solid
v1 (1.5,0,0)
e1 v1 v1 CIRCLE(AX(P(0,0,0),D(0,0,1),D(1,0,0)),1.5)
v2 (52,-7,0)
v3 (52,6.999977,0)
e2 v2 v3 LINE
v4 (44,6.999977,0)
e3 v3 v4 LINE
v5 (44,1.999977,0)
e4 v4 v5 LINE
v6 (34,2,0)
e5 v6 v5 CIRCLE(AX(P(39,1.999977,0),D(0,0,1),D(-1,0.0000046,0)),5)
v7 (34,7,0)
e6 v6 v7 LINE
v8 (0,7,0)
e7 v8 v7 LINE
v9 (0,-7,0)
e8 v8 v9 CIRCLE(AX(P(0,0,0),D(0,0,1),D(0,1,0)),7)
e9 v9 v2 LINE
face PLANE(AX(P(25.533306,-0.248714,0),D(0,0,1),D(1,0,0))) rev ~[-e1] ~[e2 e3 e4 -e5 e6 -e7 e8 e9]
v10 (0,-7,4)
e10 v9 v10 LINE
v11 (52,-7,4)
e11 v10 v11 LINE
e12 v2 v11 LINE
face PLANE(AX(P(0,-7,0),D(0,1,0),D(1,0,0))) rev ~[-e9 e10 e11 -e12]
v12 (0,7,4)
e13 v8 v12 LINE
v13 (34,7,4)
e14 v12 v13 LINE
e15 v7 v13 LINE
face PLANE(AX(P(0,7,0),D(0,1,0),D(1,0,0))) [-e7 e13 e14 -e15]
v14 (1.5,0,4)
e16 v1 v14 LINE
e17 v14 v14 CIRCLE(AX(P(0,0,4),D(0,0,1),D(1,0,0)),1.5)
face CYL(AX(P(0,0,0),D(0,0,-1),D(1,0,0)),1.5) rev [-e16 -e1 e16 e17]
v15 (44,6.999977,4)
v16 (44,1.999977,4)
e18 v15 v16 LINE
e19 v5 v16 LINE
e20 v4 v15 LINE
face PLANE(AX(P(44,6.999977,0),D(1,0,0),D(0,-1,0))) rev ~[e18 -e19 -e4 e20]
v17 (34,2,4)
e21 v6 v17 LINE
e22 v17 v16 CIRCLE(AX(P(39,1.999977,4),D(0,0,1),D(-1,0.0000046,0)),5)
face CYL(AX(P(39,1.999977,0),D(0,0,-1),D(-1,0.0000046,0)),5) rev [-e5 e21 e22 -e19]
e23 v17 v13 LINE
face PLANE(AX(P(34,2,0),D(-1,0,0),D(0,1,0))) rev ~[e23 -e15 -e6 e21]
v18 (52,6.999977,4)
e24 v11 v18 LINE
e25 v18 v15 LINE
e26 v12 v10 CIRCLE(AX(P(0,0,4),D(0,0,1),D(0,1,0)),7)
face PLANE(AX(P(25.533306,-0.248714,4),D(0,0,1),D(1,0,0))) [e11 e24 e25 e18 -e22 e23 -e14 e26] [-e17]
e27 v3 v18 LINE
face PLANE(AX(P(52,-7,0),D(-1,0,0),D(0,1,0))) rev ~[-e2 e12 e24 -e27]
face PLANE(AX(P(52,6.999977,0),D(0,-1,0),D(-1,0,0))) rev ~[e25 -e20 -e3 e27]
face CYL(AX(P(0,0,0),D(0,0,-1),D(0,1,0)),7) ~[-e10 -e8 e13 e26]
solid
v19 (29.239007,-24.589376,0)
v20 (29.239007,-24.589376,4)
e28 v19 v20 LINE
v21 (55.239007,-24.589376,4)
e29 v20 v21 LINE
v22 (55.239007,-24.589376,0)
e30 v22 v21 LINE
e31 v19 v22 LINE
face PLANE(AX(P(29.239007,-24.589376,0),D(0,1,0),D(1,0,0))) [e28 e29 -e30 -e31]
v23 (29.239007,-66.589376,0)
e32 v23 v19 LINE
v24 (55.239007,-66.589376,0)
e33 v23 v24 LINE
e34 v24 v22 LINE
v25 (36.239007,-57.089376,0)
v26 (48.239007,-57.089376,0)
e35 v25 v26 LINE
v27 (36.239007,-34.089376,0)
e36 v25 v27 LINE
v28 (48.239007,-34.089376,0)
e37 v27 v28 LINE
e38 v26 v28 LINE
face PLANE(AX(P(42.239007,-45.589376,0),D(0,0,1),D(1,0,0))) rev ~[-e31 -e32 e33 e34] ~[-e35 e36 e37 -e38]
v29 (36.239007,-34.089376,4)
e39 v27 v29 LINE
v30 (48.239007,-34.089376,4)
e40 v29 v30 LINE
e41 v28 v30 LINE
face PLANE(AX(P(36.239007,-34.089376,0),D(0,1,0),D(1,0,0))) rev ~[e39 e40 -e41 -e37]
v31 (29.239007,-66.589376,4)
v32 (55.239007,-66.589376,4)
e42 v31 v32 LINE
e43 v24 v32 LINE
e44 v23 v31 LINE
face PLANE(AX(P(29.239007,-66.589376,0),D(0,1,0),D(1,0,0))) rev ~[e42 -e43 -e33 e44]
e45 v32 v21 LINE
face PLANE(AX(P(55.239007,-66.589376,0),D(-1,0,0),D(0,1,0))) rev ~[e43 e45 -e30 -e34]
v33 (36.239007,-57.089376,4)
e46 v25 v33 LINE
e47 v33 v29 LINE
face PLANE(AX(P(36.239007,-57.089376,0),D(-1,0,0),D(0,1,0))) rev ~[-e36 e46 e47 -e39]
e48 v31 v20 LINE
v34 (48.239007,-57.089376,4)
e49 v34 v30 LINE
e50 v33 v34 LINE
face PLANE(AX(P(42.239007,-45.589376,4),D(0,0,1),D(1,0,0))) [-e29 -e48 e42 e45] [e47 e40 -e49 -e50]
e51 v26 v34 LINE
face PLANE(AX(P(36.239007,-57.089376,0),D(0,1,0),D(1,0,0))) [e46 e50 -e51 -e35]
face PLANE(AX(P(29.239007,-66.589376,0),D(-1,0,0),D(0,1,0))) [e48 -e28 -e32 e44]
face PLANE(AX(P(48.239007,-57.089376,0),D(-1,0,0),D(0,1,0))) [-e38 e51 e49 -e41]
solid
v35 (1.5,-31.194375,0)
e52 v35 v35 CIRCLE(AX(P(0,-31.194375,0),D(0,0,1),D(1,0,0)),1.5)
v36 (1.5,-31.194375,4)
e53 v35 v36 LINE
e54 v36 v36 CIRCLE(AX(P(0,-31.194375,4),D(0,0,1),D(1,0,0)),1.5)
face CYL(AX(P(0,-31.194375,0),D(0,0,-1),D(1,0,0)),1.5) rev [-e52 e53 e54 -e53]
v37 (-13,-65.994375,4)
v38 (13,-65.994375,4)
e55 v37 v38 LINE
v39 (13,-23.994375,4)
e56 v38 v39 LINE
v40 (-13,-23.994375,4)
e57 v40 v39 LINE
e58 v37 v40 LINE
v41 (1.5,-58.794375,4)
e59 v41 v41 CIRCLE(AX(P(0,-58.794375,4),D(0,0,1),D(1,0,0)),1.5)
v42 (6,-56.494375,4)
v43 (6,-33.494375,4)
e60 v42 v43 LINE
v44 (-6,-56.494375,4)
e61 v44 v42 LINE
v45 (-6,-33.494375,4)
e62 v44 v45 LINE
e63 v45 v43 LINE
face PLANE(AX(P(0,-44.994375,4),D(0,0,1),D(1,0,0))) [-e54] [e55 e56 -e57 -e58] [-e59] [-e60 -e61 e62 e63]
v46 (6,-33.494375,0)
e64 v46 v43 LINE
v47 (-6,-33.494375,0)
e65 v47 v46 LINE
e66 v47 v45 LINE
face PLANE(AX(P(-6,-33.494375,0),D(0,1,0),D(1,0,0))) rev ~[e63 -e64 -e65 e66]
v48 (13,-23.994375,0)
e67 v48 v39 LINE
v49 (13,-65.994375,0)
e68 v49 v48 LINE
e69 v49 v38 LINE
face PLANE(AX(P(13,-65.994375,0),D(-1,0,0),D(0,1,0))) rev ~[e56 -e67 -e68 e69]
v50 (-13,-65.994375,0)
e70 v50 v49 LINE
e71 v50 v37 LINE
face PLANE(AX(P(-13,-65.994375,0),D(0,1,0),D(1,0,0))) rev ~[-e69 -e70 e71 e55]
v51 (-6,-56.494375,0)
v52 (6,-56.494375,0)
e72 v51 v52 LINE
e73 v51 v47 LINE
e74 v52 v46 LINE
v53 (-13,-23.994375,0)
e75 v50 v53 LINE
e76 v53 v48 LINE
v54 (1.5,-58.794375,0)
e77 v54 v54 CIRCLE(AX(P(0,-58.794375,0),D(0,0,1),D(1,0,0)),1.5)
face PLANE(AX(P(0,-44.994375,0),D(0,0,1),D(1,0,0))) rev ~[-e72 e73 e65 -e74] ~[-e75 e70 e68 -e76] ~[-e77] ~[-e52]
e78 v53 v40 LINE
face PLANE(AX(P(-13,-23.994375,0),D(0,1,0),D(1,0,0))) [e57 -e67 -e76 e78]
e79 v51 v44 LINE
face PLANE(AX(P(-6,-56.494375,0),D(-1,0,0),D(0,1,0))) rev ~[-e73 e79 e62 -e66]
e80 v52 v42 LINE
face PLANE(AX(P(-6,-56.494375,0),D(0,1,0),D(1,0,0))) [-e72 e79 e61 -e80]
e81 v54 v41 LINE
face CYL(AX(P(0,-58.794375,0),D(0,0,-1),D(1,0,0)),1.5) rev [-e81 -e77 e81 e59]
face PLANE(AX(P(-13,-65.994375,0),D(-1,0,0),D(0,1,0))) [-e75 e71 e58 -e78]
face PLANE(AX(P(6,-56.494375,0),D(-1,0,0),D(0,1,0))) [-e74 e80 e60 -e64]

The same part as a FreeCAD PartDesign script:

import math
import FreeCAD as App
import Part
import Sketcher
Q = App.Units.Quantity


def add_polygon(sketch, points):
    """Adds a closed chain of lines whose ends are joined by coincident constraints."""
    first, n = sketch.GeometryCount, len(points)
    for a, b in zip(points, points[1:] + points[:1]):
        sketch.addGeometry(Part.LineSegment(App.Vector(*a, 0), App.Vector(*b, 0)), False)
    for i in range(n):
        sketch.addConstraint(Sketcher.Constraint("Coincident", first + i, 2, first + (i + 1) % n, 1))

doc = App.newDocument("Part")
params = doc.addObject("Spreadsheet::Sheet", "Params")
for row, (alias, value) in enumerate([
    ("sketch1_width", "26 mm"),
    ("sketch1_width2", "12 mm"),
    ("sketch1_height", "42 mm"),
    ("sketch1_height2", "23 mm"),
    ("pad1_length", "4 mm"),
    ("sketch2_diameter", "3 mm"),
    ("sketch2_width", "26 mm"),
    ("sketch2_width2", "12 mm"),
    ("sketch2_height", "42 mm"),
    ("sketch2_height2", "23 mm"),
    ("pad2_length", "4 mm"),
    ("sketch3_diameter", "3 mm"),
    ("sketch3_radius", "7 mm"),
    ("sketch3_radius2", "5 mm"),
    ("sketch3_width", "52 mm"),
    ("sketch3_width2", "8 mm"),
    ("pad3_length", "4 mm"),
], start=1):
    params.set(f"A{row}", alias)
    params.set(f"B{row}", "=" + value)
    params.setAlias(f"B{row}", alias)

body = doc.addObject("PartDesign::Body", "Body")

# Sketch on XY plane
sketch1 = doc.addObject("Sketcher::SketchObject", "Sketch")
body.addObject(sketch1)
sketch1.AttachmentSupport = (doc.XY_Plane, [""])
sketch1.MapMode = "FlatFace"
add_polygon(sketch1, [(29, -25), (29, -67), (55, -67), (55, -25)])  # lines 0-3
add_polygon(sketch1, [(48, -57), (36, -57), (36, -34), (48, -34)])  # lines 4-7
sketch1.addConstraint([
    Sketcher.Constraint("Vertical", 0),
    Sketcher.Constraint("Horizontal", 1),
    Sketcher.Constraint("Vertical", 2),
    Sketcher.Constraint("Horizontal", 3),
    Sketcher.Constraint("Horizontal", 4),
    Sketcher.Constraint("Vertical", 5),
    Sketcher.Constraint("Horizontal", 6),
    Sketcher.Constraint("Vertical", 7),
    Sketcher.Constraint("DistanceX", 1, 1, 1, 2, Q("26 mm")),
    Sketcher.Constraint("DistanceX", 4, 2, 4, 1, Q("12 mm")),
    Sketcher.Constraint("DistanceY", 0, 2, 0, 1, Q("42 mm")),
    Sketcher.Constraint("DistanceY", 5, 1, 5, 2, Q("23 mm")),
    Sketcher.Constraint("DistanceX", 0, 2, 4, 2, Q("7 mm")),
    Sketcher.Constraint("DistanceY", 0, 2, 4, 2, Q("9.5 mm")),
    Sketcher.Constraint("DistanceX", -1, 1, 0, 2, Q("29.239007 mm")),
    Sketcher.Constraint("DistanceY", 0, 2, -1, 1, Q("66.589376 mm")),
])
sketch1.setExpression("Constraints[16]", "Params.sketch1_width")
sketch1.setExpression("Constraints[17]", "Params.sketch1_width2")
sketch1.setExpression("Constraints[18]", "Params.sketch1_height")
sketch1.setExpression("Constraints[19]", "Params.sketch1_height2")
pad1 = doc.addObject("PartDesign::Pad", "Pad")
body.addObject(pad1)
pad1.Profile = sketch1
pad1.setExpression("Length", "Params.pad1_length")
body2 = doc.addObject("PartDesign::Body", "Body001")

# Sketch on XY plane
sketch2 = doc.addObject("Sketcher::SketchObject", "Sketch001")
body2.addObject(sketch2)
sketch2.AttachmentSupport = (doc.getObject("XY_Plane001"), [""])
sketch2.MapMode = "FlatFace"
add_polygon(sketch2, [(-13, -24), (-13, -66), (13, -66), (13, -24)])  # lines 0-3
sketch2.addGeometry(Part.Circle(App.Vector(0, -58.8, 0), App.Vector(0, 0, 1), 1.5), False)  # 4
add_polygon(sketch2, [(6, -56.5), (-6, -56.5), (-6, -33.5), (6, -33.5)])  # lines 5-8
sketch2.addGeometry(Part.Circle(App.Vector(0, -31.2, 0), App.Vector(0, 0, 1), 1.5), False)  # 9
sketch2.addConstraint([
    Sketcher.Constraint("Vertical", 0),
    Sketcher.Constraint("Horizontal", 1),
    Sketcher.Constraint("Vertical", 2),
    Sketcher.Constraint("Horizontal", 3),
    Sketcher.Constraint("Horizontal", 5),
    Sketcher.Constraint("Vertical", 6),
    Sketcher.Constraint("Horizontal", 7),
    Sketcher.Constraint("Vertical", 8),
    Sketcher.Constraint("Equal", 4, 9),
    Sketcher.Constraint("PointOnObject", 4, 3, -2),
    Sketcher.Constraint("PointOnObject", 9, 3, -2),
    Sketcher.Constraint("Diameter", 4, Q("3 mm")),
    Sketcher.Constraint("DistanceX", 1, 1, 1, 2, Q("26 mm")),
    Sketcher.Constraint("DistanceX", 5, 2, 5, 1, Q("12 mm")),
    Sketcher.Constraint("DistanceY", 0, 2, 0, 1, Q("42 mm")),
    Sketcher.Constraint("DistanceY", 6, 1, 6, 2, Q("23 mm")),
    Sketcher.Constraint("DistanceX", 0, 2, -1, 1, Q("13 mm")),
    Sketcher.Constraint("DistanceX", 5, 2, -1, 1, Q("6 mm")),
    Sketcher.Constraint("DistanceY", 4, 3, 9, 3, Q("27.6 mm")),
    Sketcher.Constraint("DistanceY", 0, 2, 4, 3, Q("7.2 mm")),
    Sketcher.Constraint("DistanceY", 4, 3, 5, 2, Q("2.3 mm")),
    Sketcher.Constraint("DistanceY", 4, 3, -1, 1, Q("58.794375 mm")),
])
sketch2.setExpression("Constraints[19]", "Params.sketch2_diameter")
sketch2.setExpression("Constraints[20]", "Params.sketch2_width")
sketch2.setExpression("Constraints[21]", "Params.sketch2_width2")
sketch2.setExpression("Constraints[22]", "Params.sketch2_height")
sketch2.setExpression("Constraints[23]", "Params.sketch2_height2")
pad2 = doc.addObject("PartDesign::Pad", "Pad001")
body2.addObject(pad2)
pad2.Profile = sketch2
pad2.setExpression("Length", "Params.pad2_length")
body3 = doc.addObject("PartDesign::Body", "Body002")

# Sketch on XY plane
sketch3 = doc.addObject("Sketcher::SketchObject", "Sketch002")
body3.addObject(sketch3)
sketch3.AttachmentSupport = (doc.getObject("XY_Plane002"), [""])
sketch3.MapMode = "FlatFace"
sketch3.addGeometry([
    Part.ArcOfCircle(Part.Circle(App.Vector(0, 0, 0), App.Vector(0, 0, 1), 7), math.radians(90), math.radians(270)),  # 0
    Part.LineSegment(App.Vector(0, -7, 0), App.Vector(52, -7, 0)),  # 1
    Part.LineSegment(App.Vector(52, -7, 0), App.Vector(52, 7, 0)),  # 2
    Part.LineSegment(App.Vector(52, 7, 0), App.Vector(44, 7, 0)),  # 3
    Part.LineSegment(App.Vector(44, 7, 0), App.Vector(44, 2, 0)),  # 4
    Part.ArcOfCircle(Part.Circle(App.Vector(39, 2, 0), App.Vector(0, 0, 1), 5), math.radians(180), math.radians(360)),  # 5
    Part.LineSegment(App.Vector(34, 2, 0), App.Vector(34, 7, 0)),  # 6
    Part.LineSegment(App.Vector(34, 7, 0), App.Vector(0, 7, 0)),  # 7
    Part.Circle(App.Vector(0, 0, 0), App.Vector(0, 0, 1), 1.5),  # 8
], False)
sketch3.addConstraint([
    Sketcher.Constraint("Tangent", 0, 2, 1, 1),
    Sketcher.Constraint("Coincident", 1, 2, 2, 1),
    Sketcher.Constraint("Coincident", 2, 2, 3, 1),
    Sketcher.Constraint("Coincident", 3, 2, 4, 1),
    Sketcher.Constraint("Tangent", 4, 2, 5, 2),
    Sketcher.Constraint("Coincident", 5, 1, 6, 1),
    Sketcher.Constraint("Coincident", 6, 2, 7, 1),
    Sketcher.Constraint("Tangent", 7, 2, 0, 1),
    Sketcher.Constraint("Horizontal", 1),
    Sketcher.Constraint("Vertical", 2),
    Sketcher.Constraint("Horizontal", 3),
    Sketcher.Constraint("Vertical", 4),
    Sketcher.Constraint("Vertical", 6),
    Sketcher.Constraint("Horizontal", 7),
    Sketcher.Constraint("Coincident", 0, 3, -1, 1),
    Sketcher.Constraint("Coincident", 8, 3, -1, 1),
    Sketcher.Constraint("Equal", 4, 6),
    Sketcher.Constraint("Diameter", 8, Q("3 mm")),
    Sketcher.Constraint("Radius", 0, Q("7 mm")),
    Sketcher.Constraint("Radius", 5, Q("5 mm")),
    Sketcher.Constraint("DistanceX", 1, 1, 1, 2, Q("52 mm")),
    Sketcher.Constraint("DistanceX", 3, 2, 3, 1, Q("8 mm")),
    Sketcher.Constraint("DistanceY", 4, 2, 4, 1, Q("5 mm")),
    Sketcher.Constraint("DistanceY", 2, 1, 2, 2, Q("13.999977 mm")),
])
sketch3.setExpression("Constraints[17]", "Params.sketch3_diameter")
sketch3.setExpression("Constraints[18]", "Params.sketch3_radius")
sketch3.setExpression("Constraints[19]", "Params.sketch3_radius2")
sketch3.setExpression("Constraints[20]", "Params.sketch3_width")
sketch3.setExpression("Constraints[21]", "Params.sketch3_width2")
pad3 = doc.addObject("PartDesign::Pad", "Pad002")
body3.addObject(pad3)
pad3.Profile = sketch3
pad3.setExpression("Length", "Params.pad3_length")

doc.recompute()
